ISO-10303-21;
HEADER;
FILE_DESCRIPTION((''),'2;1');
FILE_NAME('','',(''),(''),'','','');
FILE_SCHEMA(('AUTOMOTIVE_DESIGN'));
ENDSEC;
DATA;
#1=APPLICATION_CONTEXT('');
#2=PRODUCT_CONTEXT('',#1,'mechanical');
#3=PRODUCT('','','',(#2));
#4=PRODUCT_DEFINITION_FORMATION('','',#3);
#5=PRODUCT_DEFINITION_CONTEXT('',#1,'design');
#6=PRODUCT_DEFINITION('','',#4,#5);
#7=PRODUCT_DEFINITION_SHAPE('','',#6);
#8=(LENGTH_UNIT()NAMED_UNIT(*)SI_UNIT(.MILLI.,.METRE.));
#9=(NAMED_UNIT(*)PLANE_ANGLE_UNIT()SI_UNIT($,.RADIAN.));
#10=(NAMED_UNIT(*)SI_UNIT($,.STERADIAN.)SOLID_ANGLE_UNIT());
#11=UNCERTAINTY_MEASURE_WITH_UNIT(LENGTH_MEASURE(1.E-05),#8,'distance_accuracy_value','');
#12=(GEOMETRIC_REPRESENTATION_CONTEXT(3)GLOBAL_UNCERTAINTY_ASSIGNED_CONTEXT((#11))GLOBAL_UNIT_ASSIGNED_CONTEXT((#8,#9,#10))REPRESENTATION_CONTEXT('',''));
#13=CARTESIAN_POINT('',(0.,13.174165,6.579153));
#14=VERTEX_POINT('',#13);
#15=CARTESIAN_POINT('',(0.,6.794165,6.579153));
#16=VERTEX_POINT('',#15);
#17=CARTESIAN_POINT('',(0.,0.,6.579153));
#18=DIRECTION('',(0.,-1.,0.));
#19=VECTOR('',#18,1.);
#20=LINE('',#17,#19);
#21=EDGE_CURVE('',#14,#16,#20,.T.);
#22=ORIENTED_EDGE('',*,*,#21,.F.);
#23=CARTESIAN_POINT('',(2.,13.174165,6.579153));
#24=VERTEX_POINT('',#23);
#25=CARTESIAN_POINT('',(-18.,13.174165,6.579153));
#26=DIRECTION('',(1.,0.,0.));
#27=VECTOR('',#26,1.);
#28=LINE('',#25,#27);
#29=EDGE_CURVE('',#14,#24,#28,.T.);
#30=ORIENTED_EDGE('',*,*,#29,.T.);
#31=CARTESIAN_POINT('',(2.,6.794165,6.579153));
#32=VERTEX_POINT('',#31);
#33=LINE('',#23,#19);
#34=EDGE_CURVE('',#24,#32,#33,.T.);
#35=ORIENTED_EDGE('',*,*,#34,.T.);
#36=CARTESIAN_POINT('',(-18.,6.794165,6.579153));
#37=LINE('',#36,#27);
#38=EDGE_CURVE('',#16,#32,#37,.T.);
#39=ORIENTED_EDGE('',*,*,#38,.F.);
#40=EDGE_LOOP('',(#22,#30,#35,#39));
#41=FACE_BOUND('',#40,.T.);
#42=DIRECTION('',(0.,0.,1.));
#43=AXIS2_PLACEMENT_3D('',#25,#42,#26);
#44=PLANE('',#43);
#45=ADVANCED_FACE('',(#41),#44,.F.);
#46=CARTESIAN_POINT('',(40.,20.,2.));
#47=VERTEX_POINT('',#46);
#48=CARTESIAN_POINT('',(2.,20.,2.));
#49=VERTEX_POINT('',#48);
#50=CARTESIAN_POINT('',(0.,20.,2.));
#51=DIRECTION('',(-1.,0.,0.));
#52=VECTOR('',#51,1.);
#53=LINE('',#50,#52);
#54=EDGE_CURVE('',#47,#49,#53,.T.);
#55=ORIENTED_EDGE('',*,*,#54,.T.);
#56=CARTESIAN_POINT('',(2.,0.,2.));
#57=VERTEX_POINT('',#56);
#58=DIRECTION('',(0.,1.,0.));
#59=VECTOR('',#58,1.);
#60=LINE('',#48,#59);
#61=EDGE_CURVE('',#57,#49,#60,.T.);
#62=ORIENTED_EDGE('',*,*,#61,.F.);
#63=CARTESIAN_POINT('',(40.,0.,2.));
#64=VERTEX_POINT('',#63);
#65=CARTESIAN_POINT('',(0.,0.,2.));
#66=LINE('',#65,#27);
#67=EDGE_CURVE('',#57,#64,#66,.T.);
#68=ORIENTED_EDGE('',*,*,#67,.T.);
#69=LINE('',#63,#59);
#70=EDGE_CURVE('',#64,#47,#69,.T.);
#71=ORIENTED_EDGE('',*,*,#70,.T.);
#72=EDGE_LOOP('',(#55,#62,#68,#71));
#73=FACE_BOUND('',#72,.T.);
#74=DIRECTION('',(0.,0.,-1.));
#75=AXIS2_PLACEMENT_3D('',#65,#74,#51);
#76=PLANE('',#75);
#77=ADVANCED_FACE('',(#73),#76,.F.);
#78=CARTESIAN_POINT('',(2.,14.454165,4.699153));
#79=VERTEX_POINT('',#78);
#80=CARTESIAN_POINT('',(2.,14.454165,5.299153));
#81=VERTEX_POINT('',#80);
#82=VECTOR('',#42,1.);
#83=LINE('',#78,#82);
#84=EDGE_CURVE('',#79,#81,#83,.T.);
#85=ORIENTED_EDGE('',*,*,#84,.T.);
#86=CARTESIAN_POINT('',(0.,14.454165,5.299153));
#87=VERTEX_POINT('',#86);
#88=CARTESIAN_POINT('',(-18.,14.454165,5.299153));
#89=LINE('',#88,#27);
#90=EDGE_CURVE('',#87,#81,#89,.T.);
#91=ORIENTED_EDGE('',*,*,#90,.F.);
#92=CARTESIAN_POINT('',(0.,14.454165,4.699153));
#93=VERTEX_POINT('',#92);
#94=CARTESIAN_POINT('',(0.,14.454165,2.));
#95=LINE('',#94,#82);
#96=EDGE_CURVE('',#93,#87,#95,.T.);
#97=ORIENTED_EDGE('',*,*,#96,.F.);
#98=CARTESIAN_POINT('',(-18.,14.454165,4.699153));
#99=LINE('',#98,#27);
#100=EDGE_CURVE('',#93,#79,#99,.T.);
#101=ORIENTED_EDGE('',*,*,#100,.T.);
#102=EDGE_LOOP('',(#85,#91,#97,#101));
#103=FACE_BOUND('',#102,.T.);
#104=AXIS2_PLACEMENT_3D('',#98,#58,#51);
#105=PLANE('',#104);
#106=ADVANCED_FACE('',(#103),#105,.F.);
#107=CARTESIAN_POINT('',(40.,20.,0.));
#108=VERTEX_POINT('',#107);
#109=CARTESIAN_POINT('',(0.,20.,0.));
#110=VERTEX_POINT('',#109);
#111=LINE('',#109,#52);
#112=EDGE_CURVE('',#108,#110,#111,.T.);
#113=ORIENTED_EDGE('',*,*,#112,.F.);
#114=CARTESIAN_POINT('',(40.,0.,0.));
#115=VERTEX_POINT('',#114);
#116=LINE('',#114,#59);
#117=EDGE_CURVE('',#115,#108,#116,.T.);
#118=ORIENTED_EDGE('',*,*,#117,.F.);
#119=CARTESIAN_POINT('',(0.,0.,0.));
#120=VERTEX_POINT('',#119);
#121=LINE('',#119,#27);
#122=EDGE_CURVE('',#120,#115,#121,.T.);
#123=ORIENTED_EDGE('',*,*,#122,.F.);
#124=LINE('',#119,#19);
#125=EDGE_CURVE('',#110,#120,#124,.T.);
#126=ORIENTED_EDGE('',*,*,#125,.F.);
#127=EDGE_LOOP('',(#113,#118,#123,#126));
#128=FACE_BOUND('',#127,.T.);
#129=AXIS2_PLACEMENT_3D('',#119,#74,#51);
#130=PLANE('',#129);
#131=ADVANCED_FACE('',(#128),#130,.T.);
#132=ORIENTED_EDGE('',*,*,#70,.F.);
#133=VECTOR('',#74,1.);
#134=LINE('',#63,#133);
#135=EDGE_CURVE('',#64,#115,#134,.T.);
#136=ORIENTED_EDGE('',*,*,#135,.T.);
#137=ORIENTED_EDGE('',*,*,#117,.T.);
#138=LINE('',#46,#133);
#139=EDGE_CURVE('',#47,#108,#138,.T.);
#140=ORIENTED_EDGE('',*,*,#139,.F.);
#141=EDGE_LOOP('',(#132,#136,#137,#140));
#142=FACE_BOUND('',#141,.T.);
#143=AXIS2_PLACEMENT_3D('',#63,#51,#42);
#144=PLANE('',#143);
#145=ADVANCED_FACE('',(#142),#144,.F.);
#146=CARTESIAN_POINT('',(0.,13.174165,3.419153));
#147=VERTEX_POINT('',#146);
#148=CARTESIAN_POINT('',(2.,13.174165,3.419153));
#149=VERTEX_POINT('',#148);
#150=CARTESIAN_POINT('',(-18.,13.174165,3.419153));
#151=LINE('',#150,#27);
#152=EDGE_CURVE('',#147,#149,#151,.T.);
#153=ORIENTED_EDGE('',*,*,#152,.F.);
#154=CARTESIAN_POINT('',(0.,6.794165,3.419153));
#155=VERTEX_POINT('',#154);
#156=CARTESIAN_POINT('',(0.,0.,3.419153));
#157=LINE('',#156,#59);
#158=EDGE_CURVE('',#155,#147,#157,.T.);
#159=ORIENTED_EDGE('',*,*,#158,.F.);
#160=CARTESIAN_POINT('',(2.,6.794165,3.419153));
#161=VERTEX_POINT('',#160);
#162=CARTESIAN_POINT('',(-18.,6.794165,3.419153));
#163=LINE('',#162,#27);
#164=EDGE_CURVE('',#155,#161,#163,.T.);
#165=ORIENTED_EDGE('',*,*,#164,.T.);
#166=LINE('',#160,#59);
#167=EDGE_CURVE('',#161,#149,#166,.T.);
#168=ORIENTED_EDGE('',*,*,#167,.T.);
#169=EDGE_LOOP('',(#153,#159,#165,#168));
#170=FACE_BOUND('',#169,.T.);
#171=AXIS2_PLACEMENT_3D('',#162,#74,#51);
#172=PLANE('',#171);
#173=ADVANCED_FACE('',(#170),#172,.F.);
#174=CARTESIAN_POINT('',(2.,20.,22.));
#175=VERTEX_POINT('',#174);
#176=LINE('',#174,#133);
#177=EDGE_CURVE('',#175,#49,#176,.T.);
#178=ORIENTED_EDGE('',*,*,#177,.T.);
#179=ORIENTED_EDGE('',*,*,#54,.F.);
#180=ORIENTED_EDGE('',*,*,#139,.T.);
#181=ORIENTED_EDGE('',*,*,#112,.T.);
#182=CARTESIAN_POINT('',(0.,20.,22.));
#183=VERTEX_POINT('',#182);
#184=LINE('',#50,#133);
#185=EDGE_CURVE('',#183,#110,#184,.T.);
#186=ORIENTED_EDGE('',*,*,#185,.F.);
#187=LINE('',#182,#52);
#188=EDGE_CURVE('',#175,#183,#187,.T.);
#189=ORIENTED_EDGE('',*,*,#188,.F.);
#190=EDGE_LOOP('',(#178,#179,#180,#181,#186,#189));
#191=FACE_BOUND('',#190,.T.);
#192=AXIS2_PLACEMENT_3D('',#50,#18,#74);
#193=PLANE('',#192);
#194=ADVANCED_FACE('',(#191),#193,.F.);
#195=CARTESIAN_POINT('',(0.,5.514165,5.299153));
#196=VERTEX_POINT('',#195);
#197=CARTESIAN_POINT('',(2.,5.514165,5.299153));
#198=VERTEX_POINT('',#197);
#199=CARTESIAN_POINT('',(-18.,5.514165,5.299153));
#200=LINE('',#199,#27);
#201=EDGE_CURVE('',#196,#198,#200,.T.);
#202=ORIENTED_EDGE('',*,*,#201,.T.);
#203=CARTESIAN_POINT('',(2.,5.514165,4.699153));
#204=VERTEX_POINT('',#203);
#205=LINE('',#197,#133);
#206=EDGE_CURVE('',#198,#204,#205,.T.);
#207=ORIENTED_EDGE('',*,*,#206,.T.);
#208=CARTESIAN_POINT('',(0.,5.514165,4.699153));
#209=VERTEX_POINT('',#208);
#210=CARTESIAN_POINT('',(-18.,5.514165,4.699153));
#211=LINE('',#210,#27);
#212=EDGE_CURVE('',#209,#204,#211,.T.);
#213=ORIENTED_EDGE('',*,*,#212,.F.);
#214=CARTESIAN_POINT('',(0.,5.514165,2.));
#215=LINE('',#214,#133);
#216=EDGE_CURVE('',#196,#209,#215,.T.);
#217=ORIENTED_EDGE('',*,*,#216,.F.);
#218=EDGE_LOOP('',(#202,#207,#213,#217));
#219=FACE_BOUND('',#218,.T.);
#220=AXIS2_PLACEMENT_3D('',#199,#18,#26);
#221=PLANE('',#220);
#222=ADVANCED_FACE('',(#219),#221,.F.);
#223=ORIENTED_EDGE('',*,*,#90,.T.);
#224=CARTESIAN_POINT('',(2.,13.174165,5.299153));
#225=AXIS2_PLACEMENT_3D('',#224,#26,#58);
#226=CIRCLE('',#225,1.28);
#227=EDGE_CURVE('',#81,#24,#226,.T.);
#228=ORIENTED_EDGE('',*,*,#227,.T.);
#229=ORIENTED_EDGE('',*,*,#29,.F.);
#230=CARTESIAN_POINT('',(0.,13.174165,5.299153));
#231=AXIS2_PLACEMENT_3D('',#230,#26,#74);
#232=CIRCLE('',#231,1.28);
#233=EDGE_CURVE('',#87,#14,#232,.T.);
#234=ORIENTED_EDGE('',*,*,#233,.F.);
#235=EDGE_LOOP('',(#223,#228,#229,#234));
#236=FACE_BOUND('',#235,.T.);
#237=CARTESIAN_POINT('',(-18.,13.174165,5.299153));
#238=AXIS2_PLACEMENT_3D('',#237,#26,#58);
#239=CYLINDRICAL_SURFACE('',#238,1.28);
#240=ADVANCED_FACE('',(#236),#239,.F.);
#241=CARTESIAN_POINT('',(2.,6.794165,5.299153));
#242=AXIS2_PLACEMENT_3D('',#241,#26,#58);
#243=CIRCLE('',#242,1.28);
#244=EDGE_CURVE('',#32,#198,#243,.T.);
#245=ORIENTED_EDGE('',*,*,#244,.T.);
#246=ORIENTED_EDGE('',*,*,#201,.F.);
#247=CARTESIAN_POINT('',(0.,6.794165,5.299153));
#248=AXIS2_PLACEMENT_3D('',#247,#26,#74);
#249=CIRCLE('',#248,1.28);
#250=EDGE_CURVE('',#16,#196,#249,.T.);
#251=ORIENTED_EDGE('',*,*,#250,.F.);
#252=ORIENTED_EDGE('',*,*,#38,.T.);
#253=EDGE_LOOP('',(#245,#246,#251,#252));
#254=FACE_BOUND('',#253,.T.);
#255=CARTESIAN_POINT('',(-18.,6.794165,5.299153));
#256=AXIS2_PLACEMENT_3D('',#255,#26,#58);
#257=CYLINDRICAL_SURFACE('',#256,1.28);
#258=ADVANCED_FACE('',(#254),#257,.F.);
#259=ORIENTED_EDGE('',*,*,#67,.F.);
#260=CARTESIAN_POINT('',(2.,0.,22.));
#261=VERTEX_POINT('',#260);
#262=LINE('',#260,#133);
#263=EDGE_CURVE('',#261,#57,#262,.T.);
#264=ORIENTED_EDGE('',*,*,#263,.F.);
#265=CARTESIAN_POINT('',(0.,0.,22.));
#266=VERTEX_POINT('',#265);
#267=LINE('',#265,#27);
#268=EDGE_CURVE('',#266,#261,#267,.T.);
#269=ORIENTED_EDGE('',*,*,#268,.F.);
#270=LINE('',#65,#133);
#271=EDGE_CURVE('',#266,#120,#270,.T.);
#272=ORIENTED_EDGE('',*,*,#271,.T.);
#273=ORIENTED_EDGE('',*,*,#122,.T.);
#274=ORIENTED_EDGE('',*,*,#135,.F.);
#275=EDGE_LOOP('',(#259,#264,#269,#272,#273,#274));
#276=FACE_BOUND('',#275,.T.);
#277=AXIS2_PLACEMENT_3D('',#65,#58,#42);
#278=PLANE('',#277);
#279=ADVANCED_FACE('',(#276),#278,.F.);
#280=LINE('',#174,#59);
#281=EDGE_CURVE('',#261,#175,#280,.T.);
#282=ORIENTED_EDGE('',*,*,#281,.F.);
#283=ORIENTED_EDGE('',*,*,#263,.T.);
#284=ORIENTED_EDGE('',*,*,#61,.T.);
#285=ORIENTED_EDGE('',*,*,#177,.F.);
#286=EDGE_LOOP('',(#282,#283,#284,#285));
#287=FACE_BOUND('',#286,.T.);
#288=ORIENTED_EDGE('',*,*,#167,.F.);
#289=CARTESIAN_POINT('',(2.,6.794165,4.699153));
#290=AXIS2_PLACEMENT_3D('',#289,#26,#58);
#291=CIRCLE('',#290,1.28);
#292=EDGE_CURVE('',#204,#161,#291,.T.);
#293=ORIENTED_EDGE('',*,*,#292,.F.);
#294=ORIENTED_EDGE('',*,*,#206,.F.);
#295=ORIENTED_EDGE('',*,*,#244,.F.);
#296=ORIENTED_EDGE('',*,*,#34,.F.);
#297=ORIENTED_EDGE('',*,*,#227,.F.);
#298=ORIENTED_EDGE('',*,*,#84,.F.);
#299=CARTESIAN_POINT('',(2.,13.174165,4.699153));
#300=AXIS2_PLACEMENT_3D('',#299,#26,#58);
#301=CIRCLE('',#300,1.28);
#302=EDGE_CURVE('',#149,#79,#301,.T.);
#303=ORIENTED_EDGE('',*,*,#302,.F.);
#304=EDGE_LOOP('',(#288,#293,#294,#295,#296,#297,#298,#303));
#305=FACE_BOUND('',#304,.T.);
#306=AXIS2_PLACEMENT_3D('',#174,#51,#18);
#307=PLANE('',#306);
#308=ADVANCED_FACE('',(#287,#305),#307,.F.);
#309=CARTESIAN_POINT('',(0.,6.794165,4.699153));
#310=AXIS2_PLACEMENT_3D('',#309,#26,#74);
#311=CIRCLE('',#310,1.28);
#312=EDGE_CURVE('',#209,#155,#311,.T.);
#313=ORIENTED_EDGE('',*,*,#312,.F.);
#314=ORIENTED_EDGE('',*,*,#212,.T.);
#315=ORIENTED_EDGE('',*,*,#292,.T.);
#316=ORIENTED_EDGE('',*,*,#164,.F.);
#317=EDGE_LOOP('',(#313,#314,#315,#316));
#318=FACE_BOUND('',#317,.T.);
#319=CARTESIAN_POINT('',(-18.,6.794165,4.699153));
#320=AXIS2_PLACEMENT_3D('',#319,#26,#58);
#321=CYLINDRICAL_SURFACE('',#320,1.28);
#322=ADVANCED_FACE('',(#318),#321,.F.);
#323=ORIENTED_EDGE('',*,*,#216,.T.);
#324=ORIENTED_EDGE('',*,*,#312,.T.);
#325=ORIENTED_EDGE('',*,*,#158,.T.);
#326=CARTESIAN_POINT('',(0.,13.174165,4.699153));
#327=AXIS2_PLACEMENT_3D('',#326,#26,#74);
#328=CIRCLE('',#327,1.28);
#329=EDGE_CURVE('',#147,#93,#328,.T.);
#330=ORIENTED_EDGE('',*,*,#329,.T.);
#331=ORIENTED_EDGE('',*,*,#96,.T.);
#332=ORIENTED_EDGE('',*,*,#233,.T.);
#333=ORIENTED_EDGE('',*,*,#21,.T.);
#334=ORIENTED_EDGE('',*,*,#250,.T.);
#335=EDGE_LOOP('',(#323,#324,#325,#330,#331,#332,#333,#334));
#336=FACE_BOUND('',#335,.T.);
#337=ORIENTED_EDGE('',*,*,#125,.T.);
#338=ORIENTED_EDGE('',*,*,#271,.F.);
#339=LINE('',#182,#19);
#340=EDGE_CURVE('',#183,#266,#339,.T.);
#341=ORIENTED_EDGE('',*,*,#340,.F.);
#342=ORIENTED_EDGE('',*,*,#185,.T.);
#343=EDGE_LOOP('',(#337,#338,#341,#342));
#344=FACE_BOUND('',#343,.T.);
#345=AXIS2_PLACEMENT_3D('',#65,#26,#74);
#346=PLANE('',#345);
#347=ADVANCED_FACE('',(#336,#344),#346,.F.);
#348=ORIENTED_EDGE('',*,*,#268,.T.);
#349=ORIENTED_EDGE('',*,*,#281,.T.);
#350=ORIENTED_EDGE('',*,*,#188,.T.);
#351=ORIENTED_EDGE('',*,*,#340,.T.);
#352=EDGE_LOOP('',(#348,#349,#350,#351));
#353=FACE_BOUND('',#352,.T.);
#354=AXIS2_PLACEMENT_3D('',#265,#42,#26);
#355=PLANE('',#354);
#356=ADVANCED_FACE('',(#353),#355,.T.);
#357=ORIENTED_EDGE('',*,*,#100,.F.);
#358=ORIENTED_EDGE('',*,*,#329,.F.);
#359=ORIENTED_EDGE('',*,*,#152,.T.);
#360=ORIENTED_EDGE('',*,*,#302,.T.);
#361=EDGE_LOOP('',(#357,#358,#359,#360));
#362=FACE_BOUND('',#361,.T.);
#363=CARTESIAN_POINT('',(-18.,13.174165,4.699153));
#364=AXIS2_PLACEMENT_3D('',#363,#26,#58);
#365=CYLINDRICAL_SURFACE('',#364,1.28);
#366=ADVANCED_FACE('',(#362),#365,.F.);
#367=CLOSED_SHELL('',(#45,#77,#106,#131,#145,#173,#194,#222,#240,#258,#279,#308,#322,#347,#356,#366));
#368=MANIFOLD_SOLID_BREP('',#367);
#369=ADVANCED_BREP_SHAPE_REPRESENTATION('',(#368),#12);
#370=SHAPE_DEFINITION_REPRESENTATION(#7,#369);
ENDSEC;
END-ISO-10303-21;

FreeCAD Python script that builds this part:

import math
import FreeCAD as App
import Part
import Sketcher
from FreeCAD import Vector

doc = App.newDocument("Part")
params = doc.addObject("Spreadsheet::Sheet", "Params")
for row, (alias, value) in enumerate([
    ("sketch1_width", "40 mm"),
    ("sketch1_height", "20 mm"),
    ("pad1_length", "2 mm"),
    ("sketch2_width", "2 mm"),
    ("sketch2_height", "20 mm"),
    ("pad2_length", "20 mm"),
    ("sketch3_radius", "1.28 mm"),
    ("sketch3_height", "0.6 mm"),
    ("sketch3_width", "6.38 mm"),
    ("pocket1_length", "20 mm"),
], start=1):
    params.set(f"A{row}", alias)
    params.set(f"B{row}", "=" + value)
    params.setAlias(f"B{row}", alias)

body = doc.addObject("PartDesign::Body", "Body")

# Sketch on XY plane
sketch1 = body.newObject("Sketcher::SketchObject", "Sketch")
sketch1.AttachmentSupport = (doc.getObject("XY_Plane"), [""])
sketch1.MapMode = "FlatFace"
sketch1.addGeometry([
    Part.LineSegment(Vector(0, 20, 0), Vector(0, 0, 0)),
    Part.LineSegment(Vector(0, 0, 0), Vector(40, 0, 0)),
    Part.LineSegment(Vector(40, 0, 0), Vector(40, 20, 0)),
    Part.LineSegment(Vector(40, 20, 0), Vector(0, 20, 0)),
], False)
sketch1.addConstraint([
    Sketcher.Constraint("Coincident", 0, 2, 1, 1),
    Sketcher.Constraint("Coincident", 1, 2, 2, 1),
    Sketcher.Constraint("Coincident", 2, 2, 3, 1),
    Sketcher.Constraint("Coincident", 3, 2, 0, 1),
    Sketcher.Constraint("Vertical", 0),
    Sketcher.Constraint("Horizontal", 1),
    Sketcher.Constraint("Vertical", 2),
    Sketcher.Constraint("Horizontal", 3),
    Sketcher.Constraint("Coincident", 0, 2, -1, 1),
    Sketcher.Constraint("DistanceX", 1, 1, 1, 2, 40.0),
    Sketcher.Constraint("DistanceY", 0, 2, 0, 1, 20.0),
])
sketch1.setExpression("Constraints[9]", "Params.sketch1_width")
sketch1.setExpression("Constraints[10]", "Params.sketch1_height")
pad1 = body.newObject("PartDesign::Pad", "Pad")
pad1.Profile = sketch1
pad1.setExpression("Length", "Params.pad1_length")

# Sketch on XY plane
sketch2 = body.newObject("Sketcher::SketchObject", "Sketch001")
sketch2.AttachmentSupport = (doc.getObject("XY_Plane"), [""])
sketch2.MapMode = "FlatFace"
sketch2.AttachmentOffset = App.Placement(Vector(0, 0, 2), App.Rotation())
sketch2.addGeometry([
    Part.LineSegment(Vector(0, 20, 0), Vector(0, 0, 0)),
    Part.LineSegment(Vector(0, 0, 0), Vector(2, 0, 0)),
    Part.LineSegment(Vector(2, 0, 0), Vector(2, 20, 0)),
    Part.LineSegment(Vector(2, 20, 0), Vector(0, 20, 0)),
], False)
sketch2.addConstraint([
    Sketcher.Constraint("Coincident", 0, 2, 1, 1),
    Sketcher.Constraint("Coincident", 1, 2, 2, 1),
    Sketcher.Constraint("Coincident", 2, 2, 3, 1),
    Sketcher.Constraint("Coincident", 3, 2, 0, 1),
    Sketcher.Constraint("Vertical", 0),
    Sketcher.Constraint("Horizontal", 1),
    Sketcher.Constraint("Vertical", 2),
    Sketcher.Constraint("Horizontal", 3),
    Sketcher.Constraint("Coincident", 0, 2, -1, 1),
    Sketcher.Constraint("DistanceX", 1, 1, 1, 2, 2.0),
    Sketcher.Constraint("DistanceY", 0, 2, 0, 1, 20.0),
])
sketch2.setExpression("Constraints[9]", "Params.sketch2_width")
sketch2.setExpression("Constraints[10]", "Params.sketch2_height")
pad2 = body.newObject("PartDesign::Pad", "Pad001")
pad2.Profile = sketch2
pad2.setExpression("Length", "Params.pad2_length")

# Sketch on YZ plane
sketch3 = body.newObject("Sketcher::SketchObject", "Sketch002")
sketch3.AttachmentSupport = (doc.getObject("YZ_Plane"), [""])
sketch3.MapMode = "FlatFace"
sketch3.AttachmentOffset = App.Placement(Vector(0, 0, 2), App.Rotation())
sketch3.addGeometry([
    Part.LineSegment(Vector(14.5, 4.7, 0), Vector(14.5, 5.3, 0)),  # 0
    Part.ArcOfCircle(Part.Circle(Vector(13.2, 5.3, 0), Vector(0, 0, 1), 1.3), math.radians(0), math.radians(90)),  # 1
    Part.LineSegment(Vector(13.2, 6.6, 0), Vector(6.8, 6.6, 0)),  # 2
    Part.ArcOfCircle(Part.Circle(Vector(6.8, 5.3, 0), Vector(0, 0, 1), 1.3), math.radians(90), math.radians(180)),  # 3
    Part.LineSegment(Vector(5.5, 5.3, 0), Vector(5.5, 4.7, 0)),  # 4
    Part.ArcOfCircle(Part.Circle(Vector(6.8, 4.7, 0), Vector(0, 0, 1), 1.3), math.radians(180), math.radians(270)),  # 5
    Part.LineSegment(Vector(6.8, 3.4, 0), Vector(13.2, 3.4, 0)),  # 6
    Part.ArcOfCircle(Part.Circle(Vector(13.2, 4.7, 0), Vector(0, 0, 1), 1.3), math.radians(-90), math.radians(0)),  # 7
], False)
sketch3.addConstraint([
    Sketcher.Constraint("Tangent", 0, 2, 1, 1),
    Sketcher.Constraint("Tangent", 1, 2, 2, 1),
    Sketcher.Constraint("Tangent", 2, 2, 3, 1),
    Sketcher.Constraint("Tangent", 3, 2, 4, 1),
    Sketcher.Constraint("Tangent", 4, 2, 5, 1),
    Sketcher.Constraint("Tangent", 5, 2, 6, 1),
    Sketcher.Constraint("Tangent", 6, 2, 7, 1),
    Sketcher.Constraint("Tangent", 7, 2, 0, 1),
    Sketcher.Constraint("Vertical", 0),
    Sketcher.Constraint("Horizontal", 2),
    Sketcher.Constraint("Vertical", 4),
    Sketcher.Constraint("Horizontal", 6),
    Sketcher.Constraint("Equal", 1, 3),
    Sketcher.Constraint("Equal", 3, 5),
    Sketcher.Constraint("Equal", 5, 7),
    Sketcher.Constraint("Radius", 1, 1.28),
    Sketcher.Constraint("DistanceY", 0, 1, 0, 2, 0.6),
    Sketcher.Constraint("DistanceX", 2, 2, 2, 1, 6.38),
    Sketcher.Constraint("DistanceX", -1, 1, 1, 3, 13.174165),
    Sketcher.Constraint("DistanceY", -1, 1, 1, 3, 5.299153),
])
sketch3.setExpression("Constraints[15]", "Params.sketch3_radius")
sketch3.setExpression("Constraints[16]", "Params.sketch3_height")
sketch3.setExpression("Constraints[17]", "Params.sketch3_width")
pocket1 = body.newObject("PartDesign::Pocket", "Pocket")
pocket1.Profile = sketch3
pocket1.setExpression("Length", "Params.pocket1_length")

doc.recompute()
